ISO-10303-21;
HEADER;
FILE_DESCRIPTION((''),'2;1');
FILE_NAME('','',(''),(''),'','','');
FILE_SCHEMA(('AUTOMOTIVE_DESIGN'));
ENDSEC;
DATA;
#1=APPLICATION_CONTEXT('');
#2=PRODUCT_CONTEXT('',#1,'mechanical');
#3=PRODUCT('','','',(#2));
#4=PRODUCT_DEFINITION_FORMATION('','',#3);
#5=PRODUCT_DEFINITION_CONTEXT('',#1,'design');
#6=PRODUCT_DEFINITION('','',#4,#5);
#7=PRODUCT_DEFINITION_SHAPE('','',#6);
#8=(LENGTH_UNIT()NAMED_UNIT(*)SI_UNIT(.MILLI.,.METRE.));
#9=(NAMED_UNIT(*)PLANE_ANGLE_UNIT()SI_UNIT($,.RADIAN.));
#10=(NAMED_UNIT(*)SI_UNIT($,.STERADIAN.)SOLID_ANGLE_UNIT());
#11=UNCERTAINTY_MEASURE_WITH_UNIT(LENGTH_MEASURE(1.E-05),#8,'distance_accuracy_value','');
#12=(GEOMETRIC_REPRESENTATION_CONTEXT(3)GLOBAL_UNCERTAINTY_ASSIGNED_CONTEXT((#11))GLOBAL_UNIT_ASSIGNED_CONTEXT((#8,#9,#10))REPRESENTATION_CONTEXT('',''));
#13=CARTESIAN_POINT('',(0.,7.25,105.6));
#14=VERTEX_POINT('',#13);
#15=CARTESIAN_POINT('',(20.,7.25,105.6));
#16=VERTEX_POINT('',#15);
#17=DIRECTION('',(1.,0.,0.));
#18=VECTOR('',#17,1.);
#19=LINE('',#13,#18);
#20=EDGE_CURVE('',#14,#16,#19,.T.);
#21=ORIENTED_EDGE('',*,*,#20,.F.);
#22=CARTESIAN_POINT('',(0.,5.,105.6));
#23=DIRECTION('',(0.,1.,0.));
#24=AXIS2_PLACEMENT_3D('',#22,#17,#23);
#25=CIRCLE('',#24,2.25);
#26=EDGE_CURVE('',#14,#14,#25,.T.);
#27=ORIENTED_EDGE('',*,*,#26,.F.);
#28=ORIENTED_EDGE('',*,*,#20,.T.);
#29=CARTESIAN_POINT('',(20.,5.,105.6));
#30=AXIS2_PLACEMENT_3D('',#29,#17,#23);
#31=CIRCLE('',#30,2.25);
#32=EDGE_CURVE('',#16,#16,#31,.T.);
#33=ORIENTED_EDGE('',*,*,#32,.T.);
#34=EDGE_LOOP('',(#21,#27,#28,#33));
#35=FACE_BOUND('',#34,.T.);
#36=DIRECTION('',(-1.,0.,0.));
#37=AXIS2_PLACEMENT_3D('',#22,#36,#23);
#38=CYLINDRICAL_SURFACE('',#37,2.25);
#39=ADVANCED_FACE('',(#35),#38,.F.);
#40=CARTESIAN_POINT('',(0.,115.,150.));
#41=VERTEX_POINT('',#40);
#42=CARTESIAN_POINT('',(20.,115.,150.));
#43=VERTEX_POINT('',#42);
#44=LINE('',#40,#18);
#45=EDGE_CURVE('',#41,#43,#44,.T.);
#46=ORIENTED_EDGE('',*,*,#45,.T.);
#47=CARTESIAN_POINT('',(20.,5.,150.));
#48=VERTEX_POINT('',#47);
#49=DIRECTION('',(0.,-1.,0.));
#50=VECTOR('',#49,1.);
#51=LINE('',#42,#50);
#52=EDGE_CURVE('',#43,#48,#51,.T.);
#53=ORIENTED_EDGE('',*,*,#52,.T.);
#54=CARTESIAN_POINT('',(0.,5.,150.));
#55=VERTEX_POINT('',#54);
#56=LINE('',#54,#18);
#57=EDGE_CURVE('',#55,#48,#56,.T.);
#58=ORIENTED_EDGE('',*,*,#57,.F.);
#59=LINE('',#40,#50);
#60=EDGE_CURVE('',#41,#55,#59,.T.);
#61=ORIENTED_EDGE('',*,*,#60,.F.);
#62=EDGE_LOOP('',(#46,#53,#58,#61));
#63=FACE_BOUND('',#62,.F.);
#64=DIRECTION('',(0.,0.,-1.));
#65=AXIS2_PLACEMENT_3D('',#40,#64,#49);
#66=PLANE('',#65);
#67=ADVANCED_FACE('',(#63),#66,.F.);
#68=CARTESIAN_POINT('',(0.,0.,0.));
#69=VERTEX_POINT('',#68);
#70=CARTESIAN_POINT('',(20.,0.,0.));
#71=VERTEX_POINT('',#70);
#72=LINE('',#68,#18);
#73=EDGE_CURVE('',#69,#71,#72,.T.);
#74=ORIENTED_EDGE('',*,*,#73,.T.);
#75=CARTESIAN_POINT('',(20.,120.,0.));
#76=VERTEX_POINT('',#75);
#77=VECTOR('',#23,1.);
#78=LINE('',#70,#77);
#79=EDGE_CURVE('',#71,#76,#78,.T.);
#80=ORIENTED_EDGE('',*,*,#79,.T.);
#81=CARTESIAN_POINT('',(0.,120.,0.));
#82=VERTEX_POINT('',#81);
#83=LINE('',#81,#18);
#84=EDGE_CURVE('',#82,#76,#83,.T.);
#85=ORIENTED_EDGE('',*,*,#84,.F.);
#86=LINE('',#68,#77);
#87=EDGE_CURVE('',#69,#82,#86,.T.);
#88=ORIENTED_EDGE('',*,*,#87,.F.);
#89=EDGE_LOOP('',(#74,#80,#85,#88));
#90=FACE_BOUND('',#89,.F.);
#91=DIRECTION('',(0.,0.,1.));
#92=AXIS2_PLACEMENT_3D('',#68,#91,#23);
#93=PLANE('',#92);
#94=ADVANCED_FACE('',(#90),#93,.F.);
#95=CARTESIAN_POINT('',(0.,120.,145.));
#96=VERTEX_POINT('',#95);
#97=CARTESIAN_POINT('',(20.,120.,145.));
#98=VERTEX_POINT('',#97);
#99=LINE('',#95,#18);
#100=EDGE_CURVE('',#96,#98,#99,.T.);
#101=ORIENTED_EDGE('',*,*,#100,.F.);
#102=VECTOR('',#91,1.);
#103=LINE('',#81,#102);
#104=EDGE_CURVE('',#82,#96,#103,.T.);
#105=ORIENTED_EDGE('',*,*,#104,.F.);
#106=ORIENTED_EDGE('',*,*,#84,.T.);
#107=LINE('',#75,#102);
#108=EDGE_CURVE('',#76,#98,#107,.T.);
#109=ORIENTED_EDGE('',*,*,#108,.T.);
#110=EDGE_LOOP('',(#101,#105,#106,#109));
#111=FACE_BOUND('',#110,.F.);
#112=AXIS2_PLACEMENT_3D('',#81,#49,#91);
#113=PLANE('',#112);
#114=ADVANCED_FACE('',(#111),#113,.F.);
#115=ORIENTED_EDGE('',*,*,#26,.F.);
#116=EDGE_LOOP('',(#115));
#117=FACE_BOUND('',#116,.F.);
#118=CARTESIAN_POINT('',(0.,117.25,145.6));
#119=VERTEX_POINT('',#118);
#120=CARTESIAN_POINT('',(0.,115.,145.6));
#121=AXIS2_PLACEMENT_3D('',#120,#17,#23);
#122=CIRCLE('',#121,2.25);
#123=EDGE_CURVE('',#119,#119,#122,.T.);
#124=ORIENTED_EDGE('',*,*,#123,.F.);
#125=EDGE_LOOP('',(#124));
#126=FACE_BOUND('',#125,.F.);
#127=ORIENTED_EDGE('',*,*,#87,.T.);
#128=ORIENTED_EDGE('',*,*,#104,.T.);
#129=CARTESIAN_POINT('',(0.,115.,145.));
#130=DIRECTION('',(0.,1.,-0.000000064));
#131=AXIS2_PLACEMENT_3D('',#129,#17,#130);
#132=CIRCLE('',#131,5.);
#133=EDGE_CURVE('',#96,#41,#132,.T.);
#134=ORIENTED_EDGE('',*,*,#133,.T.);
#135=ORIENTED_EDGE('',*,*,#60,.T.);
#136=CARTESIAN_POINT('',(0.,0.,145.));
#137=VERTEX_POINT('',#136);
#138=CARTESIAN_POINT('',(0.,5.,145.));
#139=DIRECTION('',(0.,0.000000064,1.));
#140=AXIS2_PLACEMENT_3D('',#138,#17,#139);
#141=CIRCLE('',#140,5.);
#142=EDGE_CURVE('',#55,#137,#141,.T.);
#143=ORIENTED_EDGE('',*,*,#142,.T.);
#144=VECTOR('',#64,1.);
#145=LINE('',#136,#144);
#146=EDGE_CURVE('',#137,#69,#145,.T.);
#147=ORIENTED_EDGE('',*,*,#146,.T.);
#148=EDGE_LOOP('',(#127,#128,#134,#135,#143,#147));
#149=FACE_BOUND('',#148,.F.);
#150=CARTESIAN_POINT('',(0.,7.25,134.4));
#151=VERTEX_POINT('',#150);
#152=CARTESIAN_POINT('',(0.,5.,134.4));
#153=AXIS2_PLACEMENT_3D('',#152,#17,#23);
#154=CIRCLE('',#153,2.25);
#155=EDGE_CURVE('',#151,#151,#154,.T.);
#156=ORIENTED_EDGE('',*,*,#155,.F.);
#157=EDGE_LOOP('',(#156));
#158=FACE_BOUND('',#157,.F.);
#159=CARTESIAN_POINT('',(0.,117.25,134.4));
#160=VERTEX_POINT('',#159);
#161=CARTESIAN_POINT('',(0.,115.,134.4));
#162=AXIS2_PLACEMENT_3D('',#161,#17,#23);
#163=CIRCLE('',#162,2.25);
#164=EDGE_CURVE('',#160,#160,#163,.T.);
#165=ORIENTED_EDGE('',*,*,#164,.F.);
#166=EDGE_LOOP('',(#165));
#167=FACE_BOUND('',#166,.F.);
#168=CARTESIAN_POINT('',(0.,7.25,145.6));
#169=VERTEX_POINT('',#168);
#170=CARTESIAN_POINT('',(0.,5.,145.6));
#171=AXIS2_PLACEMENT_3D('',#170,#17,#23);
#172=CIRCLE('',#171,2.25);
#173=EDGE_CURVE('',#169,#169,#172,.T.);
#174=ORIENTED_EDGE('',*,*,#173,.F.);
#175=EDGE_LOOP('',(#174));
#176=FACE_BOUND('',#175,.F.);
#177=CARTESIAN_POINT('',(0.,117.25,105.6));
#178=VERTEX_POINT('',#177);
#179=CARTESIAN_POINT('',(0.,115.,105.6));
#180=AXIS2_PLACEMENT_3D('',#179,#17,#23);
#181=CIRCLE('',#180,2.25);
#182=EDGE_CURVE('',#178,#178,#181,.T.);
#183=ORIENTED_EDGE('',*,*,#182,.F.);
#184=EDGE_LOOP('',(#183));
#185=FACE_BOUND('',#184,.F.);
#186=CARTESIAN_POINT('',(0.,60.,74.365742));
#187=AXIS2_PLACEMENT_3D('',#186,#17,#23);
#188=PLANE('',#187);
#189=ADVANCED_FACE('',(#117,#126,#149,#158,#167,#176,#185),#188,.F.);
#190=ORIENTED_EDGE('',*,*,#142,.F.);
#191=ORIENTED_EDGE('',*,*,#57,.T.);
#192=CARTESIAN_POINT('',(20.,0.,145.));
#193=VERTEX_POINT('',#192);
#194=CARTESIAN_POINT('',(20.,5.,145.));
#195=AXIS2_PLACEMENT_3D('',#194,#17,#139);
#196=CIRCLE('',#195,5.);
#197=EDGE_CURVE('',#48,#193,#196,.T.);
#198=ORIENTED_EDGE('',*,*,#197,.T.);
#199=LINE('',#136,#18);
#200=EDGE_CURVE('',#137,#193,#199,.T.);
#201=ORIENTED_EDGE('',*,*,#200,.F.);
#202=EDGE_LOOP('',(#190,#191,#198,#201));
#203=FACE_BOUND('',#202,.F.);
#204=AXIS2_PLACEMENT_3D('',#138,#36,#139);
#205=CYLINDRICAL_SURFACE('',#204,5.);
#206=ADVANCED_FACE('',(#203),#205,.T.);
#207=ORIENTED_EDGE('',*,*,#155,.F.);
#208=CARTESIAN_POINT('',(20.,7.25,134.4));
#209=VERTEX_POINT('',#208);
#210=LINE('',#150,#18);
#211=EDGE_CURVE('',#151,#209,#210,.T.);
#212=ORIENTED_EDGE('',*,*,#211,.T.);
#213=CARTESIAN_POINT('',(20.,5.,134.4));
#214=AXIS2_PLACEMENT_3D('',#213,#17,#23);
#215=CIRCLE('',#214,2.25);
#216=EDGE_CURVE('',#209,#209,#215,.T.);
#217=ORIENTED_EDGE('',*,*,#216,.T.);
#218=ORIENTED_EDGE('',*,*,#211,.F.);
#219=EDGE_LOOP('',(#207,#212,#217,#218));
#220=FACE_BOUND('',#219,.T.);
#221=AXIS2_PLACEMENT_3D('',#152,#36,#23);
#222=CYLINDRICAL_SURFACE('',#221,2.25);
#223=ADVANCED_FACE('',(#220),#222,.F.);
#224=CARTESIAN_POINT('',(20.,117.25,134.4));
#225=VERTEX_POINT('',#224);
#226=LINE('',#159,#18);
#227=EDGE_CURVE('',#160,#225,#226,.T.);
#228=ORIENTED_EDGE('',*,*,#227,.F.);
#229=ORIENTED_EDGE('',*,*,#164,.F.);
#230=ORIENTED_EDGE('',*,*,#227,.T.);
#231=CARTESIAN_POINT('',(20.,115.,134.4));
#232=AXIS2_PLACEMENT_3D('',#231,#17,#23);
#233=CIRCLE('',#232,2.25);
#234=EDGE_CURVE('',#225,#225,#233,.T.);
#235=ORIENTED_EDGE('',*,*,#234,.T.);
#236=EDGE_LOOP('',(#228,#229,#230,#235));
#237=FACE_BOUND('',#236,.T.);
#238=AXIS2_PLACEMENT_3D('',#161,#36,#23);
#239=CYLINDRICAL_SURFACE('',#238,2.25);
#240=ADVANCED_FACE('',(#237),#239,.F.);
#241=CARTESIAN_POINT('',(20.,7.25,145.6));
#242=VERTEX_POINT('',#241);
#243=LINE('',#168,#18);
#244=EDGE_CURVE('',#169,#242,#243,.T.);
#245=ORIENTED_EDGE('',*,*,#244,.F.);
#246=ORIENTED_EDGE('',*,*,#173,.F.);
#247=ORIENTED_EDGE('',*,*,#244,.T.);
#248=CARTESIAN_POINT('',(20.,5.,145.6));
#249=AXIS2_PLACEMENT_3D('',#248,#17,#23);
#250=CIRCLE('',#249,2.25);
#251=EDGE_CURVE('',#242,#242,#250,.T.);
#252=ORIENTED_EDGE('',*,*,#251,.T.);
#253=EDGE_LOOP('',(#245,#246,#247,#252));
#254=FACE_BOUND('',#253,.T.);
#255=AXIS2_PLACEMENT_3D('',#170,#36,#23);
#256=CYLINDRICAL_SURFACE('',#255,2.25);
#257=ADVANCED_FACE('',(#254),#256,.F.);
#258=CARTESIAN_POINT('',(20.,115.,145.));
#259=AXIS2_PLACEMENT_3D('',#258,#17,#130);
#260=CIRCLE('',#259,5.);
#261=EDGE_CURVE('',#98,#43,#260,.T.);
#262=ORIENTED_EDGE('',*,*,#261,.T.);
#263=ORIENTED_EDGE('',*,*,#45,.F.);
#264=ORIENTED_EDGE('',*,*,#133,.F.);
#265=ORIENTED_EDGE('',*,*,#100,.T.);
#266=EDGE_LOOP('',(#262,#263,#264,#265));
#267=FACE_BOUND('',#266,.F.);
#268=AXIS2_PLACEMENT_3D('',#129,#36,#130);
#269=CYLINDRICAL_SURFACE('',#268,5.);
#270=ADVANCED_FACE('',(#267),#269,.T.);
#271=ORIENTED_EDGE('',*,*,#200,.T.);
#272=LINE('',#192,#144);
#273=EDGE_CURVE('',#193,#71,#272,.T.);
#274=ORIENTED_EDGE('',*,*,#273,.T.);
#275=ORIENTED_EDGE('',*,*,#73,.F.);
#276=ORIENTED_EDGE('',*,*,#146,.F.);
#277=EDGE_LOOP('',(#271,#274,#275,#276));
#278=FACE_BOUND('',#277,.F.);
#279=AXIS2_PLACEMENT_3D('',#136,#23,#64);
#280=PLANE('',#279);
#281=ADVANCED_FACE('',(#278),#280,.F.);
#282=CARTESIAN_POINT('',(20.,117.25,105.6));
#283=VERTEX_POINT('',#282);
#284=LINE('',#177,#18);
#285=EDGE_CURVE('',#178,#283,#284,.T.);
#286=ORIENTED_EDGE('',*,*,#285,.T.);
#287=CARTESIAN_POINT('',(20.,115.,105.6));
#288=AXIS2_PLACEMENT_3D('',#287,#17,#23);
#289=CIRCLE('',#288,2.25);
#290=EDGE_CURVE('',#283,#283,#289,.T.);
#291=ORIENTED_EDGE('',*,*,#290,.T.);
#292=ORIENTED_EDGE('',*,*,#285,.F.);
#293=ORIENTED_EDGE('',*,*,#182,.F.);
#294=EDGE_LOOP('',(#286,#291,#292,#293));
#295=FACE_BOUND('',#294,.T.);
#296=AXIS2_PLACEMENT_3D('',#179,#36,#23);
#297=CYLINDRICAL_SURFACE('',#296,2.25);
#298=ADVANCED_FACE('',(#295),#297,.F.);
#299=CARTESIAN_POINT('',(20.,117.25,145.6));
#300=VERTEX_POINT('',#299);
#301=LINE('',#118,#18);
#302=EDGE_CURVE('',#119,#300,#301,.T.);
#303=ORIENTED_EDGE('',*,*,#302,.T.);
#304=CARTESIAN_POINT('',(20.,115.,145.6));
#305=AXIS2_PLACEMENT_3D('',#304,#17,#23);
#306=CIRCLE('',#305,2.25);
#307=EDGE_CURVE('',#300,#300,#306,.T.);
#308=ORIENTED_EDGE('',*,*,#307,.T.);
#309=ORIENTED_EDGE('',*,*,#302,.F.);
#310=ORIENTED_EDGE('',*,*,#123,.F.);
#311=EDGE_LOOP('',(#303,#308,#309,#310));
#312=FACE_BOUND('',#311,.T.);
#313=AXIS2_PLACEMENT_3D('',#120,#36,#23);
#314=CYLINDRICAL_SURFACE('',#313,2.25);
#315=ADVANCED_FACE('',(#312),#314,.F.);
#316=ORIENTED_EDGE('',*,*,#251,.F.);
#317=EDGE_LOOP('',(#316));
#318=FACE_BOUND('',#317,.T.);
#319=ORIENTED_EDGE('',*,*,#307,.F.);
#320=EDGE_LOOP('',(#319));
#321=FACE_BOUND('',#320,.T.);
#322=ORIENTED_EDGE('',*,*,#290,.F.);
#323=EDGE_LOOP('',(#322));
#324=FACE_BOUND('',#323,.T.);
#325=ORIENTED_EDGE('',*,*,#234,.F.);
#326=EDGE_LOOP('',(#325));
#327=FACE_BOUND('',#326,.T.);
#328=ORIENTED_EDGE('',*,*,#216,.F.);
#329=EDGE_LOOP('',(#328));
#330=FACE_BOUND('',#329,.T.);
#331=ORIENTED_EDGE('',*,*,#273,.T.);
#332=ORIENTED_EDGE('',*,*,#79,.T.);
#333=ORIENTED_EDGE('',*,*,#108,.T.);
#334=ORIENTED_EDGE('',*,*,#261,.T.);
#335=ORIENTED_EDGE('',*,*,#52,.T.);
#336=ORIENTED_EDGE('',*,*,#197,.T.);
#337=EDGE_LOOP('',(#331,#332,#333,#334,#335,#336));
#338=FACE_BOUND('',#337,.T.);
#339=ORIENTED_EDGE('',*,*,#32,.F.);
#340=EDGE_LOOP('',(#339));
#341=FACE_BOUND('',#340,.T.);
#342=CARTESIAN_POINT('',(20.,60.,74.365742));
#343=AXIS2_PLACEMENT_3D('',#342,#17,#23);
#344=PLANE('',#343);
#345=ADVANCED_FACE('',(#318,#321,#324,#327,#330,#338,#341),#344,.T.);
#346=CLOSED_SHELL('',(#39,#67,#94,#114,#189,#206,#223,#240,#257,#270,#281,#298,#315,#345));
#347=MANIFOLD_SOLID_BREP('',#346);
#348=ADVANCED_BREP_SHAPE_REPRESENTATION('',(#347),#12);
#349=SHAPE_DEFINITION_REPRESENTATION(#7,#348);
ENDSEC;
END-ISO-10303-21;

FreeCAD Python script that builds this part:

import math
import FreeCAD as App
import Part
import Sketcher

doc = App.newDocument("Part")
params = doc.addObject("Spreadsheet::Sheet", "Params")
for row, (alias, value) in enumerate([
    ("sketch1_radius", "5 mm"),
    ("sketch1_diameter", "4.5 mm"),
    ("sketch1_width", "110 mm"),
    ("sketch1_height", "145 mm"),
    ("pad1_length", "20 mm"),
], start=1):
    params.set(f"A{row}", alias)
    params.set(f"B{row}", "=" + value)
    params.setAlias(f"B{row}", alias)

body = doc.addObject("PartDesign::Body", "Body")

# Sketch on YZ plane
sketch1 = doc.addObject("Sketcher::SketchObject", "Sketch")
body.addObject(sketch1)
sketch1.AttachmentSupport = (doc.YZ_Plane, [""])
sketch1.MapMode = "FlatFace"
sketch1.addGeometry([
    Part.LineSegment(App.Vector(115, 150, 0), App.Vector(5, 150, 0)),  # 0
    Part.ArcOfCircle(Part.Circle(App.Vector(5, 145, 0), App.Vector(0, 0, 1), 5), math.radians(89.999996), math.radians(180.000004)),  # 1
    Part.LineSegment(App.Vector(0, 145, 0), App.Vector(0, 0, 0)),  # 2
    Part.LineSegment(App.Vector(0, 0, 0), App.Vector(120, 0, 0)),  # 3
    Part.LineSegment(App.Vector(120, 0, 0), App.Vector(120, 145, 0)),  # 4
    Part.ArcOfCircle(Part.Circle(App.Vector(115, 145, 0), App.Vector(0, 0, 1), 5), math.radians(-0.000004), math.radians(90.000004)),  # 5
    Part.Circle(App.Vector(5, 105.6, 0), App.Vector(0, 0, 1), 2.25),  # 6
    Part.Circle(App.Vector(115, 105.6, 0), App.Vector(0, 0, 1), 2.25),  # 7
    Part.Circle(App.Vector(5, 134.4, 0), App.Vector(0, 0, 1), 2.25),  # 8
    Part.Circle(App.Vector(5, 145.6, 0), App.Vector(0, 0, 1), 2.25),  # 9
    Part.Circle(App.Vector(115, 134.4, 0), App.Vector(0, 0, 1), 2.25),  # 10
    Part.Circle(App.Vector(115, 145.6, 0), App.Vector(0, 0, 1), 2.25),  # 11
], False)
sketch1.addConstraint([
    Sketcher.Constraint("Tangent", 0, 2, 1, 1),
    Sketcher.Constraint("Tangent", 1, 2, 2, 1),
    Sketcher.Constraint("Coincident", 2, 2, 3, 1),
    Sketcher.Constraint("Coincident", 3, 2, 4, 1),
    Sketcher.Constraint("Tangent", 4, 2, 5, 1),
    Sketcher.Constraint("Tangent", 5, 2, 0, 1),
    Sketcher.Constraint("Horizontal", 0),
    Sketcher.Constraint("Vertical", 2),
    Sketcher.Constraint("Horizontal", 3),
    Sketcher.Constraint("Vertical", 4),
    Sketcher.Constraint("Coincident", 2, 2, -1, 1),
    Sketcher.Constraint("Equal", 1, 5),
    Sketcher.Constraint("Equal", 6, 7),
    Sketcher.Constraint("Equal", 7, 8),
    Sketcher.Constraint("Equal", 8, 9),
    Sketcher.Constraint("Equal", 9, 10),
    Sketcher.Constraint("Equal", 10, 11),
    Sketcher.Constraint("Horizontal", 6, 3, 7, 3),
    Sketcher.Constraint("Horizontal", 8, 3, 10, 3),
    Sketcher.Constraint("Horizontal", 9, 3, 11, 3),
    Sketcher.Constraint("Vertical", 1, 3, 6, 3),
    Sketcher.Constraint("Vertical", 5, 3, 7, 3),
    Sketcher.Constraint("Vertical", 6, 3, 8, 3),
    Sketcher.Constraint("Vertical", 8, 3, 9, 3),
    Sketcher.Constraint("Vertical", 7, 3, 10, 3),
    Sketcher.Constraint("Vertical", 10, 3, 11, 3),
    Sketcher.Constraint("Radius", 1, 5.0),
    Sketcher.Constraint("Diameter", 6, 4.5),
    Sketcher.Constraint("DistanceX", 0, 2, 0, 1, 110.0),
    Sketcher.Constraint("DistanceY", 2, 2, 2, 1, 145.0),
    Sketcher.Constraint("DistanceY", 6, 3, 9, 3, 40.0),
    Sketcher.Constraint("DistanceY", -1, 1, 6, 3, 105.6),
    Sketcher.Constraint("DistanceY", -1, 1, 8, 3, 134.4),
])
sketch1.setExpression("Constraints[26]", "Params.sketch1_radius")
sketch1.setExpression("Constraints[27]", "Params.sketch1_diameter")
sketch1.setExpression("Constraints[28]", "Params.sketch1_width")
sketch1.setExpression("Constraints[29]", "Params.sketch1_height")
pad1 = doc.addObject("PartDesign::Pad", "Pad")
body.addObject(pad1)
pad1.Profile = sketch1
pad1.setExpression("Length", "Params.pad1_length")

doc.recompute()
